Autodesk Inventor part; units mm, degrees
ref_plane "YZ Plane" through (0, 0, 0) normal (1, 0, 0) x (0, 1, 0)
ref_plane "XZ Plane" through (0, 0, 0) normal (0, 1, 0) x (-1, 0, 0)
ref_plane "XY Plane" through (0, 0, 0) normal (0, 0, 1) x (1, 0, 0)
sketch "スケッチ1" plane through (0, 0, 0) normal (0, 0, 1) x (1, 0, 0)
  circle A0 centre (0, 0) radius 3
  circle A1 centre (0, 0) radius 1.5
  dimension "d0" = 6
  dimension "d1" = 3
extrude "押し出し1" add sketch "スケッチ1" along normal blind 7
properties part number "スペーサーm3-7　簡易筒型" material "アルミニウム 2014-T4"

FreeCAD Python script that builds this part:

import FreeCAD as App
import Part
import Sketcher

V = App.Vector

doc = App.newDocument("Part")
params = doc.addObject("Spreadsheet::Sheet", "Params")
for row, (alias, value) in enumerate([
    ("sketch1_diameter", "6 mm"),
    ("sketch1_diameter2", "3 mm"),
    ("pad1_length", "7 mm"),
], start=1):
    params.set(f"A{row}", alias)
    params.set(f"B{row}", "=" + value)
    params.setAlias(f"B{row}", alias)

body = doc.addObject("PartDesign::Body", "Body")

sketch1 = body.newObject("Sketcher::SketchObject", "Sketch")
sketch1.AttachmentSupport = (doc.getObject("XY_Plane"), [""])
sketch1.MapMode = "FlatFace"
sketch1.addGeometry(Part.Circle(V(0, 0, 0), V(0, 0, 1), 3), False)
sketch1.addGeometry(Part.Circle(V(0, 0, 0), V(0, 0, 1), 1.5), False)
sketch1.addConstraint(Sketcher.Constraint("Coincident", 0, 3, -1, 1))
sketch1.addConstraint(Sketcher.Constraint("Coincident", 1, 3, -1, 1))
sketch1.addConstraint(Sketcher.Constraint("Diameter", 0, 6.0))
sketch1.addConstraint(Sketcher.Constraint("Diameter", 1, 3.0))
sketch1.setExpression("Constraints[2]", "Params.sketch1_diameter")
sketch1.setExpression("Constraints[3]", "Params.sketch1_diameter2")
pad1 = body.newObject("PartDesign::Pad", "Pad")
pad1.Profile = sketch1
pad1.setExpression("Length", "Params.pad1_length")

doc.recompute()
